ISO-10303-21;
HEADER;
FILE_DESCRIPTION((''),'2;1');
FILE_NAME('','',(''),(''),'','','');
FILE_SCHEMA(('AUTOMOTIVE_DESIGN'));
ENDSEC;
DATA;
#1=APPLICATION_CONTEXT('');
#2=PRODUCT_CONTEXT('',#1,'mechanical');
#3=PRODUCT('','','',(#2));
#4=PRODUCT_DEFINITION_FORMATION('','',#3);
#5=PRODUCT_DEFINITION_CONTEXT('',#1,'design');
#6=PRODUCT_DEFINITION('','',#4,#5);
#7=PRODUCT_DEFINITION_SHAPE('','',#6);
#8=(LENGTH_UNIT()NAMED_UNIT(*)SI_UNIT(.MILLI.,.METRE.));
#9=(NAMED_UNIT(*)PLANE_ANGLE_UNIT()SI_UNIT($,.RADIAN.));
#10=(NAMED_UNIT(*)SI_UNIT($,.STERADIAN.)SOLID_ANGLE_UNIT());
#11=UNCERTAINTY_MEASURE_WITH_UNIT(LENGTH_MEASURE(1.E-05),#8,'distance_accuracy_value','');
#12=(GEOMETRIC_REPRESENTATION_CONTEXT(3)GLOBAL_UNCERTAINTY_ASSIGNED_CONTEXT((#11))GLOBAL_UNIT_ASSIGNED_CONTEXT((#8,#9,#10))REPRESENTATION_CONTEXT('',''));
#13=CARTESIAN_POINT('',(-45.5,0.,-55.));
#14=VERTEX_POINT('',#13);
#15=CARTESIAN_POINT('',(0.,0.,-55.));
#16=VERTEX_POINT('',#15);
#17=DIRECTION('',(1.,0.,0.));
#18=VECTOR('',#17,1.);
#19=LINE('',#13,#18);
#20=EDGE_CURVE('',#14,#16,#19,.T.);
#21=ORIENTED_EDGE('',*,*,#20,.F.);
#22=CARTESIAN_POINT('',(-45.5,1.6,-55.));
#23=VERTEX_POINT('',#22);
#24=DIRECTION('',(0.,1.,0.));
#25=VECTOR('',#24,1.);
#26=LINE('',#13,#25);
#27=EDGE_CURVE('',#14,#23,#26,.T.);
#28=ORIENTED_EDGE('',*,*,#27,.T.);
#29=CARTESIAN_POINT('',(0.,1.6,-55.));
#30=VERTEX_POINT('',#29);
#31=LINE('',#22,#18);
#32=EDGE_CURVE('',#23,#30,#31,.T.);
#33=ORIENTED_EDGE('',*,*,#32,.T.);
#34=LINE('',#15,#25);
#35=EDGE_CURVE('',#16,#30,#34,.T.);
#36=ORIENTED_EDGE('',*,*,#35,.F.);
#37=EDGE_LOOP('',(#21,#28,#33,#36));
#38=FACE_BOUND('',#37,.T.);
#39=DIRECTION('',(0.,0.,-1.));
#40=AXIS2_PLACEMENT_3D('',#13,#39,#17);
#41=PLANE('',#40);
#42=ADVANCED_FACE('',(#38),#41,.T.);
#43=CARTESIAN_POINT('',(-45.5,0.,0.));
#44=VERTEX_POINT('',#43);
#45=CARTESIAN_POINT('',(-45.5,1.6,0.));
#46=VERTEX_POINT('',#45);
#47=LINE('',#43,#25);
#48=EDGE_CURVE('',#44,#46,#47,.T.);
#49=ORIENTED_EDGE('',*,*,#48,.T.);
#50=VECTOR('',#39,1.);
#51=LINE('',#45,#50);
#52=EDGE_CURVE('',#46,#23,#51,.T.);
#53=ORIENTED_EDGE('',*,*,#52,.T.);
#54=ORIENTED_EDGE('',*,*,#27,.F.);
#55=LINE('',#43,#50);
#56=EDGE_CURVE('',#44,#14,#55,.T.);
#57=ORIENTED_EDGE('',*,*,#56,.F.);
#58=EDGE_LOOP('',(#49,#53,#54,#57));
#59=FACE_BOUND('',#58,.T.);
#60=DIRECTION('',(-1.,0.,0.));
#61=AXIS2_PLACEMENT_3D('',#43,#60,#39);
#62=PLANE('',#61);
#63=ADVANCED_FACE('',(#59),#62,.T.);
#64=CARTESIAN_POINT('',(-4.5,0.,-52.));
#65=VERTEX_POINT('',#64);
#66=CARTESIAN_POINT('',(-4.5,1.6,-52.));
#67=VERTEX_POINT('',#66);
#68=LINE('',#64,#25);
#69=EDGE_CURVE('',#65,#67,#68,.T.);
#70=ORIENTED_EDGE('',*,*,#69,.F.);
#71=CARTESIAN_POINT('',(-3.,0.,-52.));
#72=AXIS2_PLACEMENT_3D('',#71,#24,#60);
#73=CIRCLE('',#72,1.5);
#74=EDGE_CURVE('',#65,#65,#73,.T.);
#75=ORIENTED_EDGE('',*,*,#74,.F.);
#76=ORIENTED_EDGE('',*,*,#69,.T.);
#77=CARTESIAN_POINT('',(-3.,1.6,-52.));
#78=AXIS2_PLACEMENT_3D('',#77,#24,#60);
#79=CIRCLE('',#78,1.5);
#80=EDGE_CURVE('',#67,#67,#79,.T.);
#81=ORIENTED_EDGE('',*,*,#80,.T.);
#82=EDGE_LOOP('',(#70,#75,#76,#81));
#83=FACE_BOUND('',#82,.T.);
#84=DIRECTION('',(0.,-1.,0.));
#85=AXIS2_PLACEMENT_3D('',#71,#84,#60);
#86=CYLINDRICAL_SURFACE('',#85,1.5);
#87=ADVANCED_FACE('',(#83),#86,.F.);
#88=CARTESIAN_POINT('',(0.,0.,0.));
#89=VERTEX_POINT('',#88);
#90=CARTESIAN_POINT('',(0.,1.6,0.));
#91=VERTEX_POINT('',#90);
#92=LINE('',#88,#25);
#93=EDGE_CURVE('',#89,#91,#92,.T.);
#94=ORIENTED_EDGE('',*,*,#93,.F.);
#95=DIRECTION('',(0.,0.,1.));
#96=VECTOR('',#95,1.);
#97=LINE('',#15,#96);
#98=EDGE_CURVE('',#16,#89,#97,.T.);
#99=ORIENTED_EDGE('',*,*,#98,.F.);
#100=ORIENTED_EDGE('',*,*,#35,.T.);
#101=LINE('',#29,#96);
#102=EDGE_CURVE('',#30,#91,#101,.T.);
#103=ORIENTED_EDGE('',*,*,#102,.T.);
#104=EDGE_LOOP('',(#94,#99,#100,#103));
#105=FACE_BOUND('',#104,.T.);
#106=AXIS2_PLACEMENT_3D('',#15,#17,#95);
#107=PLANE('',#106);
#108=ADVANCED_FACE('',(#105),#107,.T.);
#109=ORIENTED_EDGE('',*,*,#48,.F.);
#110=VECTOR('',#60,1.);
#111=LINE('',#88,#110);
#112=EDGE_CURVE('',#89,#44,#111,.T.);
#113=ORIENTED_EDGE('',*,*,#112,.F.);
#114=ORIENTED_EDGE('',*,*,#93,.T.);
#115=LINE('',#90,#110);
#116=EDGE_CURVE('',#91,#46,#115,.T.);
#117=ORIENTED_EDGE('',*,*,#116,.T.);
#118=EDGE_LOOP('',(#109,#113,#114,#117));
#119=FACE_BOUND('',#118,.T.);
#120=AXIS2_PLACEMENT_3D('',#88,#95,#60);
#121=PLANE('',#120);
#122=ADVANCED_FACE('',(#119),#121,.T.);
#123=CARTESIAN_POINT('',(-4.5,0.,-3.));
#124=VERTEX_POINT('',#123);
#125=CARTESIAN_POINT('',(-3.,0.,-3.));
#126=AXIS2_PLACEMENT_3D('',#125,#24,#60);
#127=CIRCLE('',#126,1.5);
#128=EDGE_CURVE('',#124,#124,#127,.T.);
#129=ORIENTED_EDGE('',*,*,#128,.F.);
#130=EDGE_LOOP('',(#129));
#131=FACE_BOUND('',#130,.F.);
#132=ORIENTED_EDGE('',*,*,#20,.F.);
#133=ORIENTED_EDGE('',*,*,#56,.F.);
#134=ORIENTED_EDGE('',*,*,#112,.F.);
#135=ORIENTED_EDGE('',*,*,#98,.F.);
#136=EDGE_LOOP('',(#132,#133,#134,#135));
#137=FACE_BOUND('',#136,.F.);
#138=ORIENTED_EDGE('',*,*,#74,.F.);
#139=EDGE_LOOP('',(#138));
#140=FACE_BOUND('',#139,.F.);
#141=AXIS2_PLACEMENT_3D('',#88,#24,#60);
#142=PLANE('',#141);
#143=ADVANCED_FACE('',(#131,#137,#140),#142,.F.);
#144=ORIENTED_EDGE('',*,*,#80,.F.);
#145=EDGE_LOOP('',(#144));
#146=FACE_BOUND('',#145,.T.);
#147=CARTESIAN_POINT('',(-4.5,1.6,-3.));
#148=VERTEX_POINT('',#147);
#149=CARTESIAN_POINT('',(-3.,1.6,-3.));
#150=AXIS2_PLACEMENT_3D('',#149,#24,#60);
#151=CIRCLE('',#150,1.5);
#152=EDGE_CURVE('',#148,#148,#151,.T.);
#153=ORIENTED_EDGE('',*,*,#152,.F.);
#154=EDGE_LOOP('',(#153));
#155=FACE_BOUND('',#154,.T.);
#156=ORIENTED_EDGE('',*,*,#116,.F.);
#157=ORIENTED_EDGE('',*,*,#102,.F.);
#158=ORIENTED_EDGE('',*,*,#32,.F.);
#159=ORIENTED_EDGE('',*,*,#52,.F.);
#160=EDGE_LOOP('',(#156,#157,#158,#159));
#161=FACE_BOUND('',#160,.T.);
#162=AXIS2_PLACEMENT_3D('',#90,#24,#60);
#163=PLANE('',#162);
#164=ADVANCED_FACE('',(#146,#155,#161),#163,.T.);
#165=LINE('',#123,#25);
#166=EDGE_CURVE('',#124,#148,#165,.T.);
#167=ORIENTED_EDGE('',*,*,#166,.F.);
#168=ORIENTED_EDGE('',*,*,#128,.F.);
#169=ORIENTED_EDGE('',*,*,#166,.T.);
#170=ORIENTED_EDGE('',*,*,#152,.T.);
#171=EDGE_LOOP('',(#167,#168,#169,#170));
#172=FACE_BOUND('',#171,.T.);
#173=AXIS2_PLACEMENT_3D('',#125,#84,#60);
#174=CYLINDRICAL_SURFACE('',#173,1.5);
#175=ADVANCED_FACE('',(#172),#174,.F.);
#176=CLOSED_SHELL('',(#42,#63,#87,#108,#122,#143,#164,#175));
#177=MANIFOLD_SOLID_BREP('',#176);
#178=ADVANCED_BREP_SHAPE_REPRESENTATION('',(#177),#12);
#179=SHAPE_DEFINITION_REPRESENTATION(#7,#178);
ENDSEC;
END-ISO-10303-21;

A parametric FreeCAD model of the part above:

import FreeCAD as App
import Part
import Sketcher

V = App.Vector


def add_polygon(sketch, points):
    """Adds a closed chain of lines whose ends are joined by coincident constraints."""
    first, n = sketch.GeometryCount, len(points)
    for a, b in zip(points, points[1:] + points[:1]):
        sketch.addGeometry(Part.LineSegment(App.Vector(*a, 0), App.Vector(*b, 0)), False)
    for i in range(n):
        sketch.addConstraint(Sketcher.Constraint("Coincident", first + i, 2, first + (i + 1) % n, 1))

doc = App.newDocument("Part")
params = doc.addObject("Spreadsheet::Sheet", "Params")
for row, (alias, value) in enumerate([
    ("sketch1_diameter", "3 mm"),
    ("sketch1_height", "55 mm"),
    ("sketch1_width", "45.5 mm"),
    ("pad1_length", "1.6 mm"),
], start=1):
    params.set(f"A{row}", alias)
    params.set(f"B{row}", "=" + value)
    params.setAlias(f"B{row}", alias)

body = doc.addObject("PartDesign::Body", "Body")

# Sketch on XZ plane
sketch1 = doc.addObject("Sketcher::SketchObject", "Sketch")
body.addObject(sketch1)
sketch1.AttachmentSupport = (doc.XZ_Plane, [""])
sketch1.MapMode = "FlatFace"
add_polygon(sketch1, [(-45.5, 0), (0, 0), (0, -55), (-45.5, -55)])  # lines 0-3
sketch1.addGeometry(Part.Circle(V(-3, -52, 0), V(0, 0, 1), 1.5), False)  # 4
sketch1.addGeometry(Part.Circle(V(-3, -3, 0), V(0, 0, 1), 1.5), False)  # 5
sketch1.addConstraint(Sketcher.Constraint("Horizontal", 0))
sketch1.addConstraint(Sketcher.Constraint("Vertical", 1))
sketch1.addConstraint(Sketcher.Constraint("Horizontal", 2))
sketch1.addConstraint(Sketcher.Constraint("Vertical", 3))
sketch1.addConstraint(Sketcher.Constraint("Coincident", 0, 2, -1, 1))
sketch1.addConstraint(Sketcher.Constraint("Equal", 4, 5))
sketch1.addConstraint(Sketcher.Constraint("Vertical", 4, 3, 5, 3))
sketch1.addConstraint(Sketcher.Constraint("Diameter", 4, 3.0))
sketch1.addConstraint(Sketcher.Constraint("DistanceY", 1, 2, 1, 1, 55.0))
sketch1.addConstraint(Sketcher.Constraint("DistanceX", 0, 1, 0, 2, 45.5))
sketch1.addConstraint(Sketcher.Constraint("DistanceX", 4, 3, -1, 1, 3.0))
sketch1.addConstraint(Sketcher.Constraint("DistanceY", 5, 3, -1, 1, 3.0))
sketch1.addConstraint(Sketcher.Constraint("DistanceY", 4, 3, 5, 3, 49.0))
sketch1.setExpression("Constraints[11]", "Params.sketch1_diameter")
sketch1.setExpression("Constraints[12]", "Params.sketch1_height")
sketch1.setExpression("Constraints[13]", "Params.sketch1_width")
pad1 = doc.addObject("PartDesign::Pad", "Pad")
body.addObject(pad1)
pad1.Profile = sketch1
pad1.setExpression("Length", "Params.pad1_length")
pad1.Reversed = True

doc.recompute()
